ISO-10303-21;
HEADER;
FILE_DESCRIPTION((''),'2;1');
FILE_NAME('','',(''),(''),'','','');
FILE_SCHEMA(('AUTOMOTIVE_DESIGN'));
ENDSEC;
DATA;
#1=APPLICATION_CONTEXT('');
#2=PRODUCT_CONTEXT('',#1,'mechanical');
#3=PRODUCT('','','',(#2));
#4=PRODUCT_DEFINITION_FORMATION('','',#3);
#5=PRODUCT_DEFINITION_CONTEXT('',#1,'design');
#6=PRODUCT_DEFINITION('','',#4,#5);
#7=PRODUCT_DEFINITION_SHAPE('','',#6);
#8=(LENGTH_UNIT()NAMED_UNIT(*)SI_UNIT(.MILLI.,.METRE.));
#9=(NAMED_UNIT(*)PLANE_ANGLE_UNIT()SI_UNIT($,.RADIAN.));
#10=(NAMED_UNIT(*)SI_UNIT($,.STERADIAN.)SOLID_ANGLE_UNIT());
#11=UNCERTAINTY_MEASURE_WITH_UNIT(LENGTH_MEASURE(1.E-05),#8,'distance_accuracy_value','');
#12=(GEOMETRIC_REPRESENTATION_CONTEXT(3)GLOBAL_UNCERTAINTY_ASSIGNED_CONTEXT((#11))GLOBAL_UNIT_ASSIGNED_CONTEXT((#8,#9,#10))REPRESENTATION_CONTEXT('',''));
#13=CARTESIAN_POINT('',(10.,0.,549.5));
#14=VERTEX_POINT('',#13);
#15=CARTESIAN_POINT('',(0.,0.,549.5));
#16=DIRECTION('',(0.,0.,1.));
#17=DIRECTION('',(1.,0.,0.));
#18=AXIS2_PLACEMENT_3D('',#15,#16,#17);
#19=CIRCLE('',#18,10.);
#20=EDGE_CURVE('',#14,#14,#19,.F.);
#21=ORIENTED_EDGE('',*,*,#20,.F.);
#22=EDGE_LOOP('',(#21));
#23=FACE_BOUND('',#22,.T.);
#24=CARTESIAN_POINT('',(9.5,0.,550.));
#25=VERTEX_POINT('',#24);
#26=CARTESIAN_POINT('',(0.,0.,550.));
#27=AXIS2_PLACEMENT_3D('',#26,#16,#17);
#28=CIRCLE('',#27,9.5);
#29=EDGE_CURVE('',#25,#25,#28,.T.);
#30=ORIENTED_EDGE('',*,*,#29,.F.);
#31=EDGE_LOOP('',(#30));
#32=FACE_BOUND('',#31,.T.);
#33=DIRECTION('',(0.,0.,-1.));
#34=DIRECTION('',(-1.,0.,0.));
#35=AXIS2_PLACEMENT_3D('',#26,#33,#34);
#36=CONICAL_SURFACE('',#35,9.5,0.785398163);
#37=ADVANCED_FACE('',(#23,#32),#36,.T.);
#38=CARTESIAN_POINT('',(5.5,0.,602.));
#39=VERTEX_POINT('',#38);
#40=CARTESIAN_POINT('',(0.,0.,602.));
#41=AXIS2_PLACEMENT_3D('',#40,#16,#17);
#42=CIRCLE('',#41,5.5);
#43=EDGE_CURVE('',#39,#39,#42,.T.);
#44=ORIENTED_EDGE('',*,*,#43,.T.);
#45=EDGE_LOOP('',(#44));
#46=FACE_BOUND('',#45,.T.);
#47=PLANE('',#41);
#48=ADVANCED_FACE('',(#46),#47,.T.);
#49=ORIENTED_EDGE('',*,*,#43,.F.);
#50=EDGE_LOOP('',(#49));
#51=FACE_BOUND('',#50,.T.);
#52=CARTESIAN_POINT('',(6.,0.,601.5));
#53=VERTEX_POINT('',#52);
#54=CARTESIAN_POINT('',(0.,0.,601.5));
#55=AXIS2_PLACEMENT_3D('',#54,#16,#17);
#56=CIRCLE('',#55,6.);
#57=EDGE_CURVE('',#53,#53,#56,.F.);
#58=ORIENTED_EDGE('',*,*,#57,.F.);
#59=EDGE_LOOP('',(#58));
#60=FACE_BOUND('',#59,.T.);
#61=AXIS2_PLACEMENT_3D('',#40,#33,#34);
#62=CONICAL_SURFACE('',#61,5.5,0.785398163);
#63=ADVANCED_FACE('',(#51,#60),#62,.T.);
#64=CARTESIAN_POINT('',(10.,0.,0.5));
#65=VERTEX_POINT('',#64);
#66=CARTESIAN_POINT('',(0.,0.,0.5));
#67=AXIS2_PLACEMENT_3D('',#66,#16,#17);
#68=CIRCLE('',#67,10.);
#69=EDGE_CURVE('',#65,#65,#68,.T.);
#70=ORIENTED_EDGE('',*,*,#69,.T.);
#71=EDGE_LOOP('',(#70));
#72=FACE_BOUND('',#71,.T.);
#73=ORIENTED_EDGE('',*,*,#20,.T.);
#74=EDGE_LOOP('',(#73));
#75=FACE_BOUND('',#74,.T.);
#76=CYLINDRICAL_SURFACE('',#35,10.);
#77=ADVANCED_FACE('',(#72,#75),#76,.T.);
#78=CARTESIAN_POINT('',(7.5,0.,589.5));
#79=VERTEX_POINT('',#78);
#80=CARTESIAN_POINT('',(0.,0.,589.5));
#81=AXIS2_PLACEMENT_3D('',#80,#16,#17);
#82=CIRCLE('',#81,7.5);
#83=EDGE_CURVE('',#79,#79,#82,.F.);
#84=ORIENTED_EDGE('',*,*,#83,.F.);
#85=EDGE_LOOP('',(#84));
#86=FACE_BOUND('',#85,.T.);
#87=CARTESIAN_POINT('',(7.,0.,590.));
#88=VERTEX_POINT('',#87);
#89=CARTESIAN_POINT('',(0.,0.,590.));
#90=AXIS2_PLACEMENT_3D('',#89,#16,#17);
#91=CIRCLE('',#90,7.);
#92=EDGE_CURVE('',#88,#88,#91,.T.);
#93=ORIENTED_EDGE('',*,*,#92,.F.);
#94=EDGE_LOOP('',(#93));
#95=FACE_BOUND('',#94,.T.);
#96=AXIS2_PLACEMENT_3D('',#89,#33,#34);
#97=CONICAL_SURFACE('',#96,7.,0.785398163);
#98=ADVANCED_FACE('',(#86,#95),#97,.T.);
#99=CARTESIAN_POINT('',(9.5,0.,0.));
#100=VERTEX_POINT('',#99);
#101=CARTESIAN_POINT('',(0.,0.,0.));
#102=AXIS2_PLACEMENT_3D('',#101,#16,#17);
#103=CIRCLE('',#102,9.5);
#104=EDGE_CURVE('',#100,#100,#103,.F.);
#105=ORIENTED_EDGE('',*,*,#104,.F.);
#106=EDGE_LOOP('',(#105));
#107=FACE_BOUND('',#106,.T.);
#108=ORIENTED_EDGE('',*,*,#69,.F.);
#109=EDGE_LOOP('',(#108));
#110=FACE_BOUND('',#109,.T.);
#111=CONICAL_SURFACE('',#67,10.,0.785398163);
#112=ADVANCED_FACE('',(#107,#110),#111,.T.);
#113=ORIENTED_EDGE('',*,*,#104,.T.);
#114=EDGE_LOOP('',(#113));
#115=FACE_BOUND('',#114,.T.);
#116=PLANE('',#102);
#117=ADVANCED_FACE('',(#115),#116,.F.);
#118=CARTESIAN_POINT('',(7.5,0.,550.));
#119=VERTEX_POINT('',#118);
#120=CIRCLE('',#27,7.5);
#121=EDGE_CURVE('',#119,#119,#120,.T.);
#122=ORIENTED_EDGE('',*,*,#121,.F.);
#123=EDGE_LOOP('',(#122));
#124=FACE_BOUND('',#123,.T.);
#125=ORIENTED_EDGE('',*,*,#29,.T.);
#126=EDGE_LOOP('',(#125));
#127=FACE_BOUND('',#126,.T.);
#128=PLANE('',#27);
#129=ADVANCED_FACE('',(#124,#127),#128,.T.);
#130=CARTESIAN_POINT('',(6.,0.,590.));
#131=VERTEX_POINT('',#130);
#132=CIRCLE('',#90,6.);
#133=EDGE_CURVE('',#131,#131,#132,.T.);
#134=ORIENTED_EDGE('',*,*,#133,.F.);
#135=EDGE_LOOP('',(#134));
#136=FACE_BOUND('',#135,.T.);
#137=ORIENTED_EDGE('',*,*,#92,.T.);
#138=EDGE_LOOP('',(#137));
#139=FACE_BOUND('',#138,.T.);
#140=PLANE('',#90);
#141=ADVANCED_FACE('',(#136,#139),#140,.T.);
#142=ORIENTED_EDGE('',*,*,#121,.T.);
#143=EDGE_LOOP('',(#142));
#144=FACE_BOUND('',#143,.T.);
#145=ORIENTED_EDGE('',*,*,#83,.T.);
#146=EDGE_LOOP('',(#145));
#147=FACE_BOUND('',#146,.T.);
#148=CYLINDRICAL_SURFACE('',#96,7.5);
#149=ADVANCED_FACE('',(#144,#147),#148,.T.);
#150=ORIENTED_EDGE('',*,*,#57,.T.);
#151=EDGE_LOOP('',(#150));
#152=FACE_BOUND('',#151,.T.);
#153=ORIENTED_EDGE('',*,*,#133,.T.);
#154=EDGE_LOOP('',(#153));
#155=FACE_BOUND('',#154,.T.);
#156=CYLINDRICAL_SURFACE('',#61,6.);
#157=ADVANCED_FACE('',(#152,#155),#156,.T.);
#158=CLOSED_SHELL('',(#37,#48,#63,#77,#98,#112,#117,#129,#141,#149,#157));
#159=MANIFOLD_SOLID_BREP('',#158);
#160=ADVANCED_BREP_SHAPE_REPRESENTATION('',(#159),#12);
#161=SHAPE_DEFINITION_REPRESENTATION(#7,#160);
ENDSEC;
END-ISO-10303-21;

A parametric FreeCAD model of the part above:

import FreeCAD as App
import Part
import Sketcher

V = App.Vector
Q = App.Units.Quantity


def edges_at(feature, points):
    """Names of the edges that pass closest to the given points."""
    edges = feature.Shape.Edges
    near = lambda p: min(range(len(edges)), key=lambda i: edges[i].distToShape(Part.Vertex(*p))[0])
    return sorted({f"Edge{near(p) + 1}" for p in points})

doc = App.newDocument("Part")
body = doc.addObject("PartDesign::Body", "Body")

# Sketch on XY plane
sketch1 = body.newObject("Sketcher::SketchObject", "Sketch")
sketch1.AttachmentSupport = (doc.getObject("XY_Plane"), [""])
sketch1.MapMode = "FlatFace"
sketch1.addGeometry(Part.Circle(V(0, 0, 0), V(0, 0, 1), 10), False)
sketch1.addConstraint([
    Sketcher.Constraint("Coincident", 0, 3, -1, 1),
    Sketcher.Constraint("Diameter", 0, Q("20 mm")),
])
pad1 = body.newObject("PartDesign::Pad", "Pad")
pad1.Profile = sketch1
pad1.Length = 550

# Sketch on XY plane
sketch2 = body.newObject("Sketcher::SketchObject", "Sketch001")
sketch2.AttachmentSupport = (doc.getObject("XY_Plane"), [""])
sketch2.MapMode = "FlatFace"
sketch2.AttachmentOffset = App.Placement(V(0, 0, 550), App.Rotation())
sketch2.addGeometry(Part.Circle(V(0, 0, 0), V(0, 0, 1), 8), False)
sketch2.addConstraint([
    Sketcher.Constraint("Coincident", 0, 3, -1, 1),
    Sketcher.Constraint("Diameter", 0, Q("15 mm")),
])
pad2 = body.newObject("PartDesign::Pad", "Pad001")
pad2.Profile = sketch2
pad2.Length = 40

# Sketch on XY plane
sketch3 = body.newObject("Sketcher::SketchObject", "Sketch002")
sketch3.AttachmentSupport = (doc.getObject("XY_Plane"), [""])
sketch3.MapMode = "FlatFace"
sketch3.AttachmentOffset = App.Placement(V(0, 0, 590), App.Rotation())
sketch3.addGeometry(Part.Circle(V(0, 0, 0), V(0, 0, 1), 6), False)
sketch3.addConstraint([
    Sketcher.Constraint("Coincident", 0, 3, -1, 1),
    Sketcher.Constraint("Diameter", 0, Q("12 mm")),
])
pad3 = body.newObject("PartDesign::Pad", "Pad002")
pad3.Profile = sketch3
pad3.Length = 12
doc.recompute()

chamfer = body.newObject("PartDesign::Chamfer", "Chamfer")
chamfer.Base = (pad3, edges_at(pad3, [
    (-6, 0, 602),
    (-10, 0, 0),
    (-10, 0, 550),
    (-7.5, 0, 590),
]))
chamfer.Size = 0.5

doc.recompute()
